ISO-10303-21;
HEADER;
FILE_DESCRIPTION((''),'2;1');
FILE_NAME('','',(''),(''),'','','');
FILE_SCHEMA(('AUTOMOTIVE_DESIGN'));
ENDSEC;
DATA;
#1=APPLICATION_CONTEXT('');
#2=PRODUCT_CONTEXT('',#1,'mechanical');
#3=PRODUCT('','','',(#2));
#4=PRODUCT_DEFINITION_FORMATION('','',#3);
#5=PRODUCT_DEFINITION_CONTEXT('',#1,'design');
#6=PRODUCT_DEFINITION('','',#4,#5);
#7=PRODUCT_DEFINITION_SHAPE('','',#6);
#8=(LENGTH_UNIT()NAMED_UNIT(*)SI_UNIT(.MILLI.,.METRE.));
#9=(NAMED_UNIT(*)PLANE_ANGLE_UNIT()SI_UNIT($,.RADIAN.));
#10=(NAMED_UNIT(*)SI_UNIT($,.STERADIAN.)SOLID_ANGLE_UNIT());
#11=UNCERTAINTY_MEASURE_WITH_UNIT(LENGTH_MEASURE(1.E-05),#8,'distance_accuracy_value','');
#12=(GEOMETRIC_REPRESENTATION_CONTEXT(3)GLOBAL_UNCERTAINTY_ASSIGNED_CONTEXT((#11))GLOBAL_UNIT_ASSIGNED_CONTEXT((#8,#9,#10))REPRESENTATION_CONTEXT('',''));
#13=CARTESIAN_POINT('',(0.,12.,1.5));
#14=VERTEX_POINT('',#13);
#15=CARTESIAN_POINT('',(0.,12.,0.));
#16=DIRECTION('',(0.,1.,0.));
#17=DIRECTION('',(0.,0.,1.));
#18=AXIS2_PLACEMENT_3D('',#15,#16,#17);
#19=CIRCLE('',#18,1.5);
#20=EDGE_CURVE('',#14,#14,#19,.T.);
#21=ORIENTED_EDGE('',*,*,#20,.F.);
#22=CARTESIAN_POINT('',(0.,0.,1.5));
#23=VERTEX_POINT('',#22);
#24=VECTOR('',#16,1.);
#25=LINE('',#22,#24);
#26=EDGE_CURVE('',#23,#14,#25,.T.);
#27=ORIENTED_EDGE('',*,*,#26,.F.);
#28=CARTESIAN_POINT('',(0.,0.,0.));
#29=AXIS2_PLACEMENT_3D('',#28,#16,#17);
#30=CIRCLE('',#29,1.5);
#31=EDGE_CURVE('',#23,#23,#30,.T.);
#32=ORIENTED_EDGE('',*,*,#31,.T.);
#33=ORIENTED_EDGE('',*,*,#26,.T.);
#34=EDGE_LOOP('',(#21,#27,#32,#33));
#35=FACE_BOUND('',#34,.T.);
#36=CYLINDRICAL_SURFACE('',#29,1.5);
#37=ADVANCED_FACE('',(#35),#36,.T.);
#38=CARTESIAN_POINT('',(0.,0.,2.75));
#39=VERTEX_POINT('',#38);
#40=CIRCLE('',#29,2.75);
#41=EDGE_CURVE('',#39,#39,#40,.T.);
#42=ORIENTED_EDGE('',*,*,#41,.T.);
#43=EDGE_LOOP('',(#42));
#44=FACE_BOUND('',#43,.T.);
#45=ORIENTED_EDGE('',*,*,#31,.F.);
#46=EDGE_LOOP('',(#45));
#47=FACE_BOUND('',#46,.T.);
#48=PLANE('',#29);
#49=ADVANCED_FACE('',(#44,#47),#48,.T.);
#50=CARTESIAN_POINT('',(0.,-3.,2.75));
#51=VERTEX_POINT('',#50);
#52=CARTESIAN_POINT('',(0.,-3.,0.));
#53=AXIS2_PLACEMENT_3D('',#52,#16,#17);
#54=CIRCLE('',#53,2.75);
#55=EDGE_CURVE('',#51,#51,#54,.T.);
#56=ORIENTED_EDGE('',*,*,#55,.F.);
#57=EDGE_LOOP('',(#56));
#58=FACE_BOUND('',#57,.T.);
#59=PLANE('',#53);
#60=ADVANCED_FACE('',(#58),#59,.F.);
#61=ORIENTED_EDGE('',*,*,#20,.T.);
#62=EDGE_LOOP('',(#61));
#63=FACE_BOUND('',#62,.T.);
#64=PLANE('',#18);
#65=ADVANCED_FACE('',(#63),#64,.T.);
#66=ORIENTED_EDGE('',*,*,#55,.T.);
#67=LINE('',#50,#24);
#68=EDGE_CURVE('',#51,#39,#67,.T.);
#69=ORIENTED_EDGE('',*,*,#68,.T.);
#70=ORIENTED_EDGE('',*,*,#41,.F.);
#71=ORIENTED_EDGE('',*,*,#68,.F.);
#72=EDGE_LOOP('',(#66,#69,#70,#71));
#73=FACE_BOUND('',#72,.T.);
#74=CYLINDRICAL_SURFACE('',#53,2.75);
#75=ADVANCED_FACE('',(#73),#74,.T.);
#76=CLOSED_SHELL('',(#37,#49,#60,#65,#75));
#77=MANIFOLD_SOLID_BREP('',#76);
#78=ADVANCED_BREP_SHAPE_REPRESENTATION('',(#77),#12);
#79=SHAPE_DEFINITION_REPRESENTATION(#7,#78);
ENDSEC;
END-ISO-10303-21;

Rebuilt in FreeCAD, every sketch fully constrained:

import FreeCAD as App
import Part
import Sketcher
from FreeCAD import Vector


def add_polygon(sketch, points):
    """Adds a closed chain of lines whose ends are joined by coincident constraints."""
    first, n = sketch.GeometryCount, len(points)
    for a, b in zip(points, points[1:] + points[:1]):
        sketch.addGeometry(Part.LineSegment(App.Vector(*a, 0), App.Vector(*b, 0)), False)
    for i in range(n):
        sketch.addConstraint(Sketcher.Constraint("Coincident", first + i, 2, first + (i + 1) % n, 1))

doc = App.newDocument("Part")
params = doc.addObject("Spreadsheet::Sheet", "Params")
for row, (alias, value) in enumerate([
    ("sketch1_width", "15 mm"),
    ("sketch1_width2", "12 mm"),
    ("sketch1_height", "1.5 mm"),
    ("sketch1_height2", "2.75 mm"),
    ("revolution_angle", "360 deg"),
], start=1):
    params.set(f"A{row}", alias)
    params.set(f"B{row}", "=" + value)
    params.setAlias(f"B{row}", alias)

body = doc.addObject("PartDesign::Body", "Body")

sketch1 = doc.addObject("Sketcher::SketchObject", "Sketch")
body.addObject(sketch1)
sketch1.AttachmentSupport = (doc.YZ_Plane, [""])
sketch1.MapMode = "FlatFace"
add_polygon(sketch1, [(-3, 2.8), (-3, 0), (12, 0), (12, 1.5), (0, 1.5), (0, 2.8)])
sketch1.addConstraint(Sketcher.Constraint("Vertical", 0))
sketch1.addConstraint(Sketcher.Constraint("Horizontal", 1))
sketch1.addConstraint(Sketcher.Constraint("Vertical", 2))
sketch1.addConstraint(Sketcher.Constraint("Horizontal", 3))
sketch1.addConstraint(Sketcher.Constraint("Vertical", 4))
sketch1.addConstraint(Sketcher.Constraint("Horizontal", 5))
sketch1.addConstraint(Sketcher.Constraint("PointOnObject", 0, 2, -1))
sketch1.addConstraint(Sketcher.Constraint("PointOnObject", 3, 2, -2))
sketch1.addConstraint(Sketcher.Constraint("DistanceX", 1, 1, 1, 2, 15.0))
sketch1.addConstraint(Sketcher.Constraint("DistanceX", 3, 2, 3, 1, 12.0))
sketch1.addConstraint(Sketcher.Constraint("DistanceY", 2, 1, 2, 2, 1.5))
sketch1.addConstraint(Sketcher.Constraint("DistanceY", 0, 2, 0, 1, 2.75))
sketch1.setExpression("Constraints[14]", "Params.sketch1_width")
sketch1.setExpression("Constraints[15]", "Params.sketch1_width2")
sketch1.setExpression("Constraints[16]", "Params.sketch1_height")
sketch1.setExpression("Constraints[17]", "Params.sketch1_height2")
revolution = doc.addObject("PartDesign::Revolution", "Revolution")
body.addObject(revolution)
revolution.Profile = sketch1
revolution.ReferenceAxis = (sketch1, ["H_Axis"])
revolution.setExpression("Angle", "Params.revolution_angle")

doc.recompute()
